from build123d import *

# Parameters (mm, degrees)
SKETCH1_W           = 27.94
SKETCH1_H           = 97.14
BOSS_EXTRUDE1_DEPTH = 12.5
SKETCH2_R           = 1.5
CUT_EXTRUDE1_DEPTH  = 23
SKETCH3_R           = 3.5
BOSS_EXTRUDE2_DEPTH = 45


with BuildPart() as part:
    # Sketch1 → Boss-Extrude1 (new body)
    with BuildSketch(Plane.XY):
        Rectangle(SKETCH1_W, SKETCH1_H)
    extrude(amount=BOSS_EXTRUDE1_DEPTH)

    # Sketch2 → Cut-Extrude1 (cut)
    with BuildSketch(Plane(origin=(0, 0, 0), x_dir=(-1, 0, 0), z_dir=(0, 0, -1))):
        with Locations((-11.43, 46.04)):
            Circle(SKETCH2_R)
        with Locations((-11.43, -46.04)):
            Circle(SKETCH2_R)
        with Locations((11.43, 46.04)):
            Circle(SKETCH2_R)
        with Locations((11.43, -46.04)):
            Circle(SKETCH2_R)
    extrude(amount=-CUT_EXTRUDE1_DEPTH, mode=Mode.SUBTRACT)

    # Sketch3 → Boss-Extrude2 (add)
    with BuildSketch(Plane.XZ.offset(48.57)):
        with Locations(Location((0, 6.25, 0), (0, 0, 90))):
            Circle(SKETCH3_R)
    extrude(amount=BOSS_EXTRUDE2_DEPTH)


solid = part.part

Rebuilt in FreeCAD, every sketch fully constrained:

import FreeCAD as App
import Part
import Sketcher
from FreeCAD import Vector
Q = App.Units.Quantity


def add_polygon(sketch, points):
    """Adds a closed chain of lines whose ends are joined by coincident constraints."""
    first, n = sketch.GeometryCount, len(points)
    for a, b in zip(points, points[1:] + points[:1]):
        sketch.addGeometry(Part.LineSegment(App.Vector(*a, 0), App.Vector(*b, 0)), False)
    for i in range(n):
        sketch.addConstraint(Sketcher.Constraint("Coincident", first + i, 2, first + (i + 1) % n, 1))

doc = App.newDocument("Part")
body = doc.addObject("PartDesign::Body", "Body")

# Sketch on XY plane
sketch1 = body.newObject("Sketcher::SketchObject", "Sketch")
sketch1.AttachmentSupport = (doc.getObject("XY_Plane"), [""])
sketch1.MapMode = "FlatFace"
add_polygon(sketch1, [(-13.97, 48.57), (-13.97, -48.57), (13.97, -48.57), (13.97, 48.57)])  # lines 0-3
sketch1.addConstraint([
    Sketcher.Constraint("Vertical", 0),
    Sketcher.Constraint("Horizontal", 1),
    Sketcher.Constraint("Vertical", 2),
    Sketcher.Constraint("Horizontal", 3),
    Sketcher.Constraint("Symmetric", 0, 2, 2, 2, -1, 1),
    Sketcher.Constraint("DistanceX", 1, 1, 1, 2, Q("27.94 mm")),
    Sketcher.Constraint("DistanceY", 0, 2, 0, 1, Q("97.14 mm")),
])
pad1 = body.newObject("PartDesign::Pad", "Pad")
pad1.Profile = sketch1
pad1.Length = 12.5

# Sketch on XY plane
sketch2 = body.newObject("Sketcher::SketchObject", "Sketch001")
sketch2.AttachmentSupport = (doc.getObject("XY_Plane"), [""])
sketch2.MapMode = "FlatFace"
sketch2.addGeometry([
    Part.Circle(Vector(11.43, 46.04, 0), Vector(0, 0, 1), 1.5),
    Part.Circle(Vector(11.43, -46.04, 0), Vector(0, 0, 1), 1.5),
    Part.Circle(Vector(-11.43, 46.04, 0), Vector(0, 0, 1), 1.5),
    Part.Circle(Vector(-11.43, -46.04, 0), Vector(0, 0, 1), 1.5),
], False)
sketch2.addConstraint([
    Sketcher.Constraint("Equal", 0, 1),
    Sketcher.Constraint("Equal", 1, 2),
    Sketcher.Constraint("Equal", 2, 3),
    Sketcher.Constraint("Symmetric", 1, 3, 2, 3, -1, 1),
    Sketcher.Constraint("Symmetric", 0, 3, 3, 3, -1, 1),
    Sketcher.Constraint("Symmetric", 0, 3, 2, 3, -2),
    Sketcher.Constraint("Diameter", 0, Q("3 mm")),
    Sketcher.Constraint("DistanceX", -1, 1, 0, 3, Q("11.43 mm")),
    Sketcher.Constraint("DistanceY", -1, 1, 0, 3, Q("46.04 mm")),
])
pocket1 = body.newObject("PartDesign::Pocket", "Pocket")
pocket1.Profile = sketch2
pocket1.Length = 23
pocket1.Reversed = True

# Sketch on XZ plane
sketch3 = body.newObject("Sketcher::SketchObject", "Sketch002")
sketch3.AttachmentSupport = (doc.getObject("XZ_Plane"), [""])
sketch3.MapMode = "FlatFace"
sketch3.AttachmentOffset = App.Placement(Vector(0, 0, 48.57), App.Rotation())
sketch3.addGeometry(Part.Circle(Vector(0, 6.25, 0), Vector(0, 0, 1), 3.5), False)
sketch3.addConstraint([
    Sketcher.Constraint("PointOnObject", 0, 3, -2),
    Sketcher.Constraint("Diameter", 0, Q("7 mm")),
    Sketcher.Constraint("DistanceY", -1, 1, 0, 3, Q("6.25 mm")),
])
pad2 = body.newObject("PartDesign::Pad", "Pad001")
pad2.Profile = sketch3
pad2.Length = 45

doc.recompute()
